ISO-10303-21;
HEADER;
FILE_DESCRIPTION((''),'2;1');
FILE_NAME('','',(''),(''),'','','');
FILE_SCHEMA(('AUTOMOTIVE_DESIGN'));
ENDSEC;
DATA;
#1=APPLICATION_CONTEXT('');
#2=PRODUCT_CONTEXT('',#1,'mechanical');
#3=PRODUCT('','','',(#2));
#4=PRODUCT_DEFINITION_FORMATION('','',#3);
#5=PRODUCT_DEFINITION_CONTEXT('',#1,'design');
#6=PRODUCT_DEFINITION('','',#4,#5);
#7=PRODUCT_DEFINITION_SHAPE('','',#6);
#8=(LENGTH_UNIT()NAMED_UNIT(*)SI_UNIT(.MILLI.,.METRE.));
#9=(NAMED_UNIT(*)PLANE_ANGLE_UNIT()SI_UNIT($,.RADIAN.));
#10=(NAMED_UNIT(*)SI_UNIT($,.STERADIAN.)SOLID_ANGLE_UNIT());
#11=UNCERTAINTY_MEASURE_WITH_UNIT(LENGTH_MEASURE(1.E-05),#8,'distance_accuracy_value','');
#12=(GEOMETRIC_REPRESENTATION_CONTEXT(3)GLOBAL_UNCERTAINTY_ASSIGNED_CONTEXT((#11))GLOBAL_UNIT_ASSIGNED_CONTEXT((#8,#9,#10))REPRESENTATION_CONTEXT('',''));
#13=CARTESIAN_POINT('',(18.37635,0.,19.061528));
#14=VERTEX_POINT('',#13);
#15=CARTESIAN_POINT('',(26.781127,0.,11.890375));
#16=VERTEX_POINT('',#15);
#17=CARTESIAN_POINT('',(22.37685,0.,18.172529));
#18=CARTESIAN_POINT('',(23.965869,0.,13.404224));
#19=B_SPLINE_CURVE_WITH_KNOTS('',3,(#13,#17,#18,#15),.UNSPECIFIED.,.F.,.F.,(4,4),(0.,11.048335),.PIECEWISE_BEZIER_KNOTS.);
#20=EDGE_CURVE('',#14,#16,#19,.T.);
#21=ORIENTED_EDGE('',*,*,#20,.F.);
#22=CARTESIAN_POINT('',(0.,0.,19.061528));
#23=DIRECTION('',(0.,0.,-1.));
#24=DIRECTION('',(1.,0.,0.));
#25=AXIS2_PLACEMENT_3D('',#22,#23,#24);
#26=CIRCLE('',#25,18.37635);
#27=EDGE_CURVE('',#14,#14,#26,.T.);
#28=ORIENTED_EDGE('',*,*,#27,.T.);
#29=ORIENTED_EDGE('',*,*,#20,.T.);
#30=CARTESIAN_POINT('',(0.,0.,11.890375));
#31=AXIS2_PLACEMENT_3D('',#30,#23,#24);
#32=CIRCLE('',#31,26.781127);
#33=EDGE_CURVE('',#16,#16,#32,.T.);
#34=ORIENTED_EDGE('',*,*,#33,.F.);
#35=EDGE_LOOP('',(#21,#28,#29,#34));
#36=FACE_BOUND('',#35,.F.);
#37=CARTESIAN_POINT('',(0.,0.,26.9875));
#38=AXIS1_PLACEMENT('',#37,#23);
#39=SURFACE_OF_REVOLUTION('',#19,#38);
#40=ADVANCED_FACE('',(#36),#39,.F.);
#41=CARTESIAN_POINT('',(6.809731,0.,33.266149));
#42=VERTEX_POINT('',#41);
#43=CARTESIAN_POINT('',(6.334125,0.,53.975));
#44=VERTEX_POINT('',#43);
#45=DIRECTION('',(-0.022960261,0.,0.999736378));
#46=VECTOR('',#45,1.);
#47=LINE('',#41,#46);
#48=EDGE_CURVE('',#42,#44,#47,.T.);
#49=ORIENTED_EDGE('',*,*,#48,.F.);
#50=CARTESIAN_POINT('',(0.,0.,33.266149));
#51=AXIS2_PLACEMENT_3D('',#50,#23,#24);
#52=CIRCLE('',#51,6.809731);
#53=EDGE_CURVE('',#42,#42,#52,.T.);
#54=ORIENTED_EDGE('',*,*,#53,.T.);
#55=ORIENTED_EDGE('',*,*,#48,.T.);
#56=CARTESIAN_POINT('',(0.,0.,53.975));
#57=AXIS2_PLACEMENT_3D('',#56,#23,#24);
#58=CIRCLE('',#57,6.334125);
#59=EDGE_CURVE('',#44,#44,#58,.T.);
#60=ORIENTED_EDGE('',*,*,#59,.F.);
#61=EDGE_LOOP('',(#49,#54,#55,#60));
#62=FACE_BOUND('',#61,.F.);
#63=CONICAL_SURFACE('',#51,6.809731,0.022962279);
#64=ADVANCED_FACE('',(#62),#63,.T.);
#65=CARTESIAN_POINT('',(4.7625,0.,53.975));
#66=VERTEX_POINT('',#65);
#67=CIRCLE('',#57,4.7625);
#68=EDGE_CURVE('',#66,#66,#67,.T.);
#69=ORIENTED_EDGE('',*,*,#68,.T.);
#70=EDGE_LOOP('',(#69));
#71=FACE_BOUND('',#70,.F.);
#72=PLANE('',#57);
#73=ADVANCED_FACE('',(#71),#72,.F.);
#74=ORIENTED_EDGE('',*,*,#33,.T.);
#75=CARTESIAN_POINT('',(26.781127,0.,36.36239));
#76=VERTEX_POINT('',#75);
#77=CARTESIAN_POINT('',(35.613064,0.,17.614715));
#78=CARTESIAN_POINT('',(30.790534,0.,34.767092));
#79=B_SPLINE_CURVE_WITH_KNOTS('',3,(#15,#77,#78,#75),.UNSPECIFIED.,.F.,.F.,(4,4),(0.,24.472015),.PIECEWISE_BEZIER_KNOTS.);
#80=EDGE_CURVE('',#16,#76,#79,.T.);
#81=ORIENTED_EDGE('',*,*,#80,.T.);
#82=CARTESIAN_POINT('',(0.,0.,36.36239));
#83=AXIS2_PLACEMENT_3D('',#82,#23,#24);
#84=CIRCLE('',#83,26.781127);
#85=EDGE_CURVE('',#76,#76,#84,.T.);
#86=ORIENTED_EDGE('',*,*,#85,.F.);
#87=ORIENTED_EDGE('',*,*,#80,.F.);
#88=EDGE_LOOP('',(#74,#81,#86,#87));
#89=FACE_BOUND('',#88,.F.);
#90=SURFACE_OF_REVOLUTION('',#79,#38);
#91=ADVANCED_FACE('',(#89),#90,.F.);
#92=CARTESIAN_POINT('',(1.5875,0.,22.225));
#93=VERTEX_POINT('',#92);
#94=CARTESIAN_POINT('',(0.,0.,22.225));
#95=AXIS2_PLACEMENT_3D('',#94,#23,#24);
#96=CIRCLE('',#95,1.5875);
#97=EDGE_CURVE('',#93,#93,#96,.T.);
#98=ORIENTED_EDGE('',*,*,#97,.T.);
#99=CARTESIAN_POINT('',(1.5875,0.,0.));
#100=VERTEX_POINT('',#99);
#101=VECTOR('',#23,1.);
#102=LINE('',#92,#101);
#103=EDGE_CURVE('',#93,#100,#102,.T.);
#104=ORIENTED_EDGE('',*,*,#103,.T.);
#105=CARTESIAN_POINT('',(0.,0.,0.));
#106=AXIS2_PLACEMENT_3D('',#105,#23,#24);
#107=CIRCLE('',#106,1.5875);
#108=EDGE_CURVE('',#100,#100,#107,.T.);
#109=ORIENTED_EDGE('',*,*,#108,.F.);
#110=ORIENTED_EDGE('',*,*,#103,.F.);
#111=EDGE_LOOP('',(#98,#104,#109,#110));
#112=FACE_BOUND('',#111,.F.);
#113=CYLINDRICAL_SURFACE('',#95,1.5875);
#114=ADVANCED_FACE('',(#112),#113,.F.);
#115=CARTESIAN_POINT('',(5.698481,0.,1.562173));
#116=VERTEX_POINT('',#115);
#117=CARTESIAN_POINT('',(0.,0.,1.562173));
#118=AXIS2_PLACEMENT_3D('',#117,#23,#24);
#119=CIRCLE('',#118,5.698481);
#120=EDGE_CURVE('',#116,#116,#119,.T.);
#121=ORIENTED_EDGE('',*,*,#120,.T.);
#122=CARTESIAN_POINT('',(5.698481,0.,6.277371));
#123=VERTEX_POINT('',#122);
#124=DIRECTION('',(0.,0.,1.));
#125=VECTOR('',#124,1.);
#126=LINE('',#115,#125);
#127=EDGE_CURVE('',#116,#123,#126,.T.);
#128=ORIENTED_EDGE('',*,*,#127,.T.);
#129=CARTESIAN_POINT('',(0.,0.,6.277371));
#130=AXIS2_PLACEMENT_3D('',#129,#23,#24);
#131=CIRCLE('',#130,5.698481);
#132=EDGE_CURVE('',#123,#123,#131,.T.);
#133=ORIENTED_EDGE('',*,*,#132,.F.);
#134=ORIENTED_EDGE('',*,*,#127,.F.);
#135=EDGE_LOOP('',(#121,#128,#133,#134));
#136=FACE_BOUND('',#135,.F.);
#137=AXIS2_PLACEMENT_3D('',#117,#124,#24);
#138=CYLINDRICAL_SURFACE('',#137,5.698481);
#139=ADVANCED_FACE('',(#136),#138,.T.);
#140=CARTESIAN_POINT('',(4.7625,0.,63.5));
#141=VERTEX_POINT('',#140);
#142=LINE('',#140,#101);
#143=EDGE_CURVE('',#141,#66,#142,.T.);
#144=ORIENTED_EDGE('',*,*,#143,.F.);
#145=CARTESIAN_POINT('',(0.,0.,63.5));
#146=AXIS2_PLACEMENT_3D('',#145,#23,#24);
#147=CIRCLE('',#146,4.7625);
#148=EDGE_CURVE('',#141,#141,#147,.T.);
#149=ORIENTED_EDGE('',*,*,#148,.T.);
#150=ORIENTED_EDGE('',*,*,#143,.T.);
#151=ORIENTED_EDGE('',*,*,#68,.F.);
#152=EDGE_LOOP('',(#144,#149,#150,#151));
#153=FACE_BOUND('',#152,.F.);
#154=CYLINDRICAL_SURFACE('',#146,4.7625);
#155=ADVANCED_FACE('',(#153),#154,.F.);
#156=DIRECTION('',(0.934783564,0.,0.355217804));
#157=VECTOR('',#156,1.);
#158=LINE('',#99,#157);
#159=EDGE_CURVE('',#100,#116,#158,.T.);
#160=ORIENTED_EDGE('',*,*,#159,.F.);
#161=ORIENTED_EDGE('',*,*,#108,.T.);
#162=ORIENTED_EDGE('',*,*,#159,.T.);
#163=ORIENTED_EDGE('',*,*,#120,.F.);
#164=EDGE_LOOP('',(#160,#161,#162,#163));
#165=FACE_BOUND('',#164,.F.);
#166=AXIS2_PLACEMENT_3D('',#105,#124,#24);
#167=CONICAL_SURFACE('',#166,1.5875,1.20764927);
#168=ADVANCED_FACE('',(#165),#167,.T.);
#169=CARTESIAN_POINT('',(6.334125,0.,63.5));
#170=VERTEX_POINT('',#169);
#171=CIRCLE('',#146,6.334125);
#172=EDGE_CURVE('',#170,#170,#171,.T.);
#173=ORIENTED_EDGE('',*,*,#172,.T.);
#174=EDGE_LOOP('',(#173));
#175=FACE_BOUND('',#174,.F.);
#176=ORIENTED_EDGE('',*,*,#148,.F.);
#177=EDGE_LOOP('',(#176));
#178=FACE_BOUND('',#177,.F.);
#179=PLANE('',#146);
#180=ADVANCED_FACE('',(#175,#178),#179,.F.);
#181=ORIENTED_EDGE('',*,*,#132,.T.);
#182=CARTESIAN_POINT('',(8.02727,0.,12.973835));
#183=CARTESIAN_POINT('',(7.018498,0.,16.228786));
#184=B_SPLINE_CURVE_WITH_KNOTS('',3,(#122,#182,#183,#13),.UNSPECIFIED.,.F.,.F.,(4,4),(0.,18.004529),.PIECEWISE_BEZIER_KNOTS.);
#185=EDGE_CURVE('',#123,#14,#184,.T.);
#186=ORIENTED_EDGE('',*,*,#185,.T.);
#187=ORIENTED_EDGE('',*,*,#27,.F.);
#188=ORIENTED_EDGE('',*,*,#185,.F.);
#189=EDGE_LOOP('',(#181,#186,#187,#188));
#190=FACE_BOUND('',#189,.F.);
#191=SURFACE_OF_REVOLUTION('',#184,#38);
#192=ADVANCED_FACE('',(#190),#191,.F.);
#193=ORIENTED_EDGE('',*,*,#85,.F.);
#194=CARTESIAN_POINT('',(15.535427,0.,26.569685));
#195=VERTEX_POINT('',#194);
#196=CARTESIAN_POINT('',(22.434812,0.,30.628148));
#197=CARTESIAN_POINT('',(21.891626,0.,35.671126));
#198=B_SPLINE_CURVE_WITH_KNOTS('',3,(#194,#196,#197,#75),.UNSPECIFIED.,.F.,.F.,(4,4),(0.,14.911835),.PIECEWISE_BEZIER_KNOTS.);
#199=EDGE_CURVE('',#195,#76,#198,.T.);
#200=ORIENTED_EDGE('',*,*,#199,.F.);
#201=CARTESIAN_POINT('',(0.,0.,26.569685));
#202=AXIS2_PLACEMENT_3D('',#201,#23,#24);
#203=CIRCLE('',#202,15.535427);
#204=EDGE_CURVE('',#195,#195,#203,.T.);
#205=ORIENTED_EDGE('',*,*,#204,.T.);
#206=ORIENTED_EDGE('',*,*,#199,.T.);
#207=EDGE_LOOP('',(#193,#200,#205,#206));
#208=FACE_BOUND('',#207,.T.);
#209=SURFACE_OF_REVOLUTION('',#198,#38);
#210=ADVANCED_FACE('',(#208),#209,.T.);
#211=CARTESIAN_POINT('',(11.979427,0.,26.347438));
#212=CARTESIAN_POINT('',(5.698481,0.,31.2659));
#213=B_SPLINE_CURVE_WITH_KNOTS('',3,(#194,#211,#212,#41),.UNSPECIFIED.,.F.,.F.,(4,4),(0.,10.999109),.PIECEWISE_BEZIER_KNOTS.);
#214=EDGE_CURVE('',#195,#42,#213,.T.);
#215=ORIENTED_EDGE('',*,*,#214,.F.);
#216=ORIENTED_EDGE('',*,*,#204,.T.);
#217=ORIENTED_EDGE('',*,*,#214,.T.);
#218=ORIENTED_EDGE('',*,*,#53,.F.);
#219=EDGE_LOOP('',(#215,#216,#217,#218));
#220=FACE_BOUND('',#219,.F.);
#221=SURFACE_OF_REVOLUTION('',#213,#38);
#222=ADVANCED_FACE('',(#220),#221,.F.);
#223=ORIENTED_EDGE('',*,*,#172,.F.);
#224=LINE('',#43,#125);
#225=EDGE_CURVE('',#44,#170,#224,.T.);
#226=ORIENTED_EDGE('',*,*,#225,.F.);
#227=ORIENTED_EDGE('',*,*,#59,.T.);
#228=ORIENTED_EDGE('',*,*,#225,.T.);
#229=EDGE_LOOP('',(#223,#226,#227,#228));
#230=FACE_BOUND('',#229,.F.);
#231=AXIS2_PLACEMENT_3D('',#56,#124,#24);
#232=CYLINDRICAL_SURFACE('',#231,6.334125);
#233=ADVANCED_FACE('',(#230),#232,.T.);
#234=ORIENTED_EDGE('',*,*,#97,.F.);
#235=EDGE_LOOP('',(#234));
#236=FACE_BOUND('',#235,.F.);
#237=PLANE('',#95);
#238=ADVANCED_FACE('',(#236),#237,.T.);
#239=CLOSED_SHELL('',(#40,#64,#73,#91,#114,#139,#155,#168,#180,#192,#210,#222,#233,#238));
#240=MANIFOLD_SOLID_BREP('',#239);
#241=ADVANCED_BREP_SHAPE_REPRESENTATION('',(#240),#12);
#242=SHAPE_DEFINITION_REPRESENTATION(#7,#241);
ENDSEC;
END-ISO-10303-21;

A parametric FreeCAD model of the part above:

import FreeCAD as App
import Part
import Sketcher
from FreeCAD import Vector
Q = App.Units.Quantity

doc = App.newDocument("Part")
body = doc.addObject("PartDesign::Body", "Body")

# Sketch on XZ plane
sketch1 = body.newObject("Sketcher::SketchObject", "Sketch")
sketch1.AttachmentSupport = (doc.getObject("XZ_Plane"), [""])
sketch1.MapMode = "FlatFace"
sketch1.addGeometry([
    Part.LineSegment(Vector(0, 53.975, 0), Vector(0, 22.225, 0)),  # 0
    Part.LineSegment(Vector(0, 22.225, 0), Vector(1.5875, 22.225, 0)),  # 1
    Part.LineSegment(Vector(1.5875, 22.225, 0), Vector(1.5875, 0, 0)),  # 2
    Part.LineSegment(Vector(1.5875, 0, 0), Vector(5.698481, 1.562173, 0)),  # 3
    Part.LineSegment(Vector(5.698481, 1.562173, 0), Vector(5.698481, 6.277371, 0)),  # 4
    Part.BSplineCurve([Vector(5.698481, 6.277371, 0), Vector(8.02727, 12.973835, 0), Vector(7.018498, 16.228786, 0), Vector(18.37635, 19.061528, 0)], [4, 4], [0, 18.004529], False, 3, [1, 1, 1, 1], False),  # 5
    Part.BSplineCurve([Vector(18.37635, 19.061528, 0), Vector(22.37685, 18.172529, 0), Vector(23.965869, 13.404224, 0), Vector(26.781127, 11.890375, 0)], [4, 4], [0, 11.048335], False, 3, [1, 1, 1, 1], False),  # 6
    Part.BSplineCurve([Vector(26.781127, 11.890375, 0), Vector(35.613064, 17.614715, 0), Vector(30.790534, 34.767092, 0), Vector(26.781127, 36.36239, 0)], [4, 4], [0, 24.472015], False, 3, [1, 1, 1, 1], False),  # 7
    Part.BSplineCurve([Vector(15.535427, 26.569685, 0), Vector(22.434812, 30.628148, 0), Vector(21.891626, 35.671126, 0), Vector(26.781127, 36.36239, 0)], [4, 4], [0, 14.911835], False, 3, [1, 1, 1, 1], False),  # 8
    Part.BSplineCurve([Vector(15.535427, 26.569685, 0), Vector(11.979427, 26.347438, 0), Vector(5.698481, 31.2659, 0), Vector(6.809731, 33.266149, 0)], [4, 4], [0, 10.999109], False, 3, [1, 1, 1, 1], False),  # 9
    Part.LineSegment(Vector(6.809731, 33.266149, 0), Vector(6.334125, 53.975, 0)),  # 10
    Part.LineSegment(Vector(6.334125, 53.975, 0), Vector(6.334125, 63.5, 0)),  # 11
    Part.LineSegment(Vector(6.334125, 63.5, 0), Vector(4.7625, 63.5, 0)),  # 12
    Part.LineSegment(Vector(4.7625, 63.5, 0), Vector(4.7625, 53.975, 0)),  # 13
    Part.LineSegment(Vector(4.7625, 53.975, 0), Vector(0, 53.975, 0)),  # 14
], False)
sketch1.addConstraint([
    Sketcher.Constraint("Block", 5),
    Sketcher.Constraint("Block", 6),
    Sketcher.Constraint("Block", 7),
    Sketcher.Constraint("Block", 8),
    Sketcher.Constraint("Block", 9),
    Sketcher.Constraint("Coincident", 0, 2, 1, 1),
    Sketcher.Constraint("Coincident", 1, 2, 2, 1),
    Sketcher.Constraint("Coincident", 2, 2, 3, 1),
    Sketcher.Constraint("Coincident", 3, 2, 4, 1),
    Sketcher.Constraint("Coincident", 4, 2, 5, 1),
    Sketcher.Constraint("Coincident", 9, 2, 10, 1),
    Sketcher.Constraint("Coincident", 10, 2, 11, 1),
    Sketcher.Constraint("Coincident", 11, 2, 12, 1),
    Sketcher.Constraint("Coincident", 12, 2, 13, 1),
    Sketcher.Constraint("Coincident", 13, 2, 14, 1),
    Sketcher.Constraint("Coincident", 14, 2, 0, 1),
    Sketcher.Constraint("Vertical", 0),
    Sketcher.Constraint("Horizontal", 1),
    Sketcher.Constraint("Vertical", 2),
    Sketcher.Constraint("Vertical", 4),
    Sketcher.Constraint("Vertical", 11),
    Sketcher.Constraint("Horizontal", 12),
    Sketcher.Constraint("Vertical", 13),
    Sketcher.Constraint("Horizontal", 14),
    Sketcher.Constraint("PointOnObject", 0, 2, -2),
    Sketcher.Constraint("PointOnObject", 2, 2, -1),
    Sketcher.Constraint("Horizontal", 10, 2, 13, 2),
    Sketcher.Constraint("DistanceY", 0, 2, 0, 1, Q("1.25 in")),
    Sketcher.Constraint("DistanceY", -1, 1, 11, 2, Q("2.5 in")),
    Sketcher.Constraint("DistanceX", 1, 1, 1, 2, Q("0.0625 in")),
    Sketcher.Constraint("DistanceX", 14, 2, 14, 1, Q("0.1875 in")),
    Sketcher.Constraint("DistanceY", 2, 2, 2, 1, Q("0.875 in")),
    Sketcher.Constraint("Distance", 3, Q("4.397789 mm")),
    Sketcher.Constraint("Distance", 10, Q("20.714312 mm")),
])
revolution = body.newObject("PartDesign::Revolution", "Revolution")
revolution.Profile = sketch1
revolution.ReferenceAxis = (sketch1, ["V_Axis"])
revolution.Angle = 360

doc.recompute()
